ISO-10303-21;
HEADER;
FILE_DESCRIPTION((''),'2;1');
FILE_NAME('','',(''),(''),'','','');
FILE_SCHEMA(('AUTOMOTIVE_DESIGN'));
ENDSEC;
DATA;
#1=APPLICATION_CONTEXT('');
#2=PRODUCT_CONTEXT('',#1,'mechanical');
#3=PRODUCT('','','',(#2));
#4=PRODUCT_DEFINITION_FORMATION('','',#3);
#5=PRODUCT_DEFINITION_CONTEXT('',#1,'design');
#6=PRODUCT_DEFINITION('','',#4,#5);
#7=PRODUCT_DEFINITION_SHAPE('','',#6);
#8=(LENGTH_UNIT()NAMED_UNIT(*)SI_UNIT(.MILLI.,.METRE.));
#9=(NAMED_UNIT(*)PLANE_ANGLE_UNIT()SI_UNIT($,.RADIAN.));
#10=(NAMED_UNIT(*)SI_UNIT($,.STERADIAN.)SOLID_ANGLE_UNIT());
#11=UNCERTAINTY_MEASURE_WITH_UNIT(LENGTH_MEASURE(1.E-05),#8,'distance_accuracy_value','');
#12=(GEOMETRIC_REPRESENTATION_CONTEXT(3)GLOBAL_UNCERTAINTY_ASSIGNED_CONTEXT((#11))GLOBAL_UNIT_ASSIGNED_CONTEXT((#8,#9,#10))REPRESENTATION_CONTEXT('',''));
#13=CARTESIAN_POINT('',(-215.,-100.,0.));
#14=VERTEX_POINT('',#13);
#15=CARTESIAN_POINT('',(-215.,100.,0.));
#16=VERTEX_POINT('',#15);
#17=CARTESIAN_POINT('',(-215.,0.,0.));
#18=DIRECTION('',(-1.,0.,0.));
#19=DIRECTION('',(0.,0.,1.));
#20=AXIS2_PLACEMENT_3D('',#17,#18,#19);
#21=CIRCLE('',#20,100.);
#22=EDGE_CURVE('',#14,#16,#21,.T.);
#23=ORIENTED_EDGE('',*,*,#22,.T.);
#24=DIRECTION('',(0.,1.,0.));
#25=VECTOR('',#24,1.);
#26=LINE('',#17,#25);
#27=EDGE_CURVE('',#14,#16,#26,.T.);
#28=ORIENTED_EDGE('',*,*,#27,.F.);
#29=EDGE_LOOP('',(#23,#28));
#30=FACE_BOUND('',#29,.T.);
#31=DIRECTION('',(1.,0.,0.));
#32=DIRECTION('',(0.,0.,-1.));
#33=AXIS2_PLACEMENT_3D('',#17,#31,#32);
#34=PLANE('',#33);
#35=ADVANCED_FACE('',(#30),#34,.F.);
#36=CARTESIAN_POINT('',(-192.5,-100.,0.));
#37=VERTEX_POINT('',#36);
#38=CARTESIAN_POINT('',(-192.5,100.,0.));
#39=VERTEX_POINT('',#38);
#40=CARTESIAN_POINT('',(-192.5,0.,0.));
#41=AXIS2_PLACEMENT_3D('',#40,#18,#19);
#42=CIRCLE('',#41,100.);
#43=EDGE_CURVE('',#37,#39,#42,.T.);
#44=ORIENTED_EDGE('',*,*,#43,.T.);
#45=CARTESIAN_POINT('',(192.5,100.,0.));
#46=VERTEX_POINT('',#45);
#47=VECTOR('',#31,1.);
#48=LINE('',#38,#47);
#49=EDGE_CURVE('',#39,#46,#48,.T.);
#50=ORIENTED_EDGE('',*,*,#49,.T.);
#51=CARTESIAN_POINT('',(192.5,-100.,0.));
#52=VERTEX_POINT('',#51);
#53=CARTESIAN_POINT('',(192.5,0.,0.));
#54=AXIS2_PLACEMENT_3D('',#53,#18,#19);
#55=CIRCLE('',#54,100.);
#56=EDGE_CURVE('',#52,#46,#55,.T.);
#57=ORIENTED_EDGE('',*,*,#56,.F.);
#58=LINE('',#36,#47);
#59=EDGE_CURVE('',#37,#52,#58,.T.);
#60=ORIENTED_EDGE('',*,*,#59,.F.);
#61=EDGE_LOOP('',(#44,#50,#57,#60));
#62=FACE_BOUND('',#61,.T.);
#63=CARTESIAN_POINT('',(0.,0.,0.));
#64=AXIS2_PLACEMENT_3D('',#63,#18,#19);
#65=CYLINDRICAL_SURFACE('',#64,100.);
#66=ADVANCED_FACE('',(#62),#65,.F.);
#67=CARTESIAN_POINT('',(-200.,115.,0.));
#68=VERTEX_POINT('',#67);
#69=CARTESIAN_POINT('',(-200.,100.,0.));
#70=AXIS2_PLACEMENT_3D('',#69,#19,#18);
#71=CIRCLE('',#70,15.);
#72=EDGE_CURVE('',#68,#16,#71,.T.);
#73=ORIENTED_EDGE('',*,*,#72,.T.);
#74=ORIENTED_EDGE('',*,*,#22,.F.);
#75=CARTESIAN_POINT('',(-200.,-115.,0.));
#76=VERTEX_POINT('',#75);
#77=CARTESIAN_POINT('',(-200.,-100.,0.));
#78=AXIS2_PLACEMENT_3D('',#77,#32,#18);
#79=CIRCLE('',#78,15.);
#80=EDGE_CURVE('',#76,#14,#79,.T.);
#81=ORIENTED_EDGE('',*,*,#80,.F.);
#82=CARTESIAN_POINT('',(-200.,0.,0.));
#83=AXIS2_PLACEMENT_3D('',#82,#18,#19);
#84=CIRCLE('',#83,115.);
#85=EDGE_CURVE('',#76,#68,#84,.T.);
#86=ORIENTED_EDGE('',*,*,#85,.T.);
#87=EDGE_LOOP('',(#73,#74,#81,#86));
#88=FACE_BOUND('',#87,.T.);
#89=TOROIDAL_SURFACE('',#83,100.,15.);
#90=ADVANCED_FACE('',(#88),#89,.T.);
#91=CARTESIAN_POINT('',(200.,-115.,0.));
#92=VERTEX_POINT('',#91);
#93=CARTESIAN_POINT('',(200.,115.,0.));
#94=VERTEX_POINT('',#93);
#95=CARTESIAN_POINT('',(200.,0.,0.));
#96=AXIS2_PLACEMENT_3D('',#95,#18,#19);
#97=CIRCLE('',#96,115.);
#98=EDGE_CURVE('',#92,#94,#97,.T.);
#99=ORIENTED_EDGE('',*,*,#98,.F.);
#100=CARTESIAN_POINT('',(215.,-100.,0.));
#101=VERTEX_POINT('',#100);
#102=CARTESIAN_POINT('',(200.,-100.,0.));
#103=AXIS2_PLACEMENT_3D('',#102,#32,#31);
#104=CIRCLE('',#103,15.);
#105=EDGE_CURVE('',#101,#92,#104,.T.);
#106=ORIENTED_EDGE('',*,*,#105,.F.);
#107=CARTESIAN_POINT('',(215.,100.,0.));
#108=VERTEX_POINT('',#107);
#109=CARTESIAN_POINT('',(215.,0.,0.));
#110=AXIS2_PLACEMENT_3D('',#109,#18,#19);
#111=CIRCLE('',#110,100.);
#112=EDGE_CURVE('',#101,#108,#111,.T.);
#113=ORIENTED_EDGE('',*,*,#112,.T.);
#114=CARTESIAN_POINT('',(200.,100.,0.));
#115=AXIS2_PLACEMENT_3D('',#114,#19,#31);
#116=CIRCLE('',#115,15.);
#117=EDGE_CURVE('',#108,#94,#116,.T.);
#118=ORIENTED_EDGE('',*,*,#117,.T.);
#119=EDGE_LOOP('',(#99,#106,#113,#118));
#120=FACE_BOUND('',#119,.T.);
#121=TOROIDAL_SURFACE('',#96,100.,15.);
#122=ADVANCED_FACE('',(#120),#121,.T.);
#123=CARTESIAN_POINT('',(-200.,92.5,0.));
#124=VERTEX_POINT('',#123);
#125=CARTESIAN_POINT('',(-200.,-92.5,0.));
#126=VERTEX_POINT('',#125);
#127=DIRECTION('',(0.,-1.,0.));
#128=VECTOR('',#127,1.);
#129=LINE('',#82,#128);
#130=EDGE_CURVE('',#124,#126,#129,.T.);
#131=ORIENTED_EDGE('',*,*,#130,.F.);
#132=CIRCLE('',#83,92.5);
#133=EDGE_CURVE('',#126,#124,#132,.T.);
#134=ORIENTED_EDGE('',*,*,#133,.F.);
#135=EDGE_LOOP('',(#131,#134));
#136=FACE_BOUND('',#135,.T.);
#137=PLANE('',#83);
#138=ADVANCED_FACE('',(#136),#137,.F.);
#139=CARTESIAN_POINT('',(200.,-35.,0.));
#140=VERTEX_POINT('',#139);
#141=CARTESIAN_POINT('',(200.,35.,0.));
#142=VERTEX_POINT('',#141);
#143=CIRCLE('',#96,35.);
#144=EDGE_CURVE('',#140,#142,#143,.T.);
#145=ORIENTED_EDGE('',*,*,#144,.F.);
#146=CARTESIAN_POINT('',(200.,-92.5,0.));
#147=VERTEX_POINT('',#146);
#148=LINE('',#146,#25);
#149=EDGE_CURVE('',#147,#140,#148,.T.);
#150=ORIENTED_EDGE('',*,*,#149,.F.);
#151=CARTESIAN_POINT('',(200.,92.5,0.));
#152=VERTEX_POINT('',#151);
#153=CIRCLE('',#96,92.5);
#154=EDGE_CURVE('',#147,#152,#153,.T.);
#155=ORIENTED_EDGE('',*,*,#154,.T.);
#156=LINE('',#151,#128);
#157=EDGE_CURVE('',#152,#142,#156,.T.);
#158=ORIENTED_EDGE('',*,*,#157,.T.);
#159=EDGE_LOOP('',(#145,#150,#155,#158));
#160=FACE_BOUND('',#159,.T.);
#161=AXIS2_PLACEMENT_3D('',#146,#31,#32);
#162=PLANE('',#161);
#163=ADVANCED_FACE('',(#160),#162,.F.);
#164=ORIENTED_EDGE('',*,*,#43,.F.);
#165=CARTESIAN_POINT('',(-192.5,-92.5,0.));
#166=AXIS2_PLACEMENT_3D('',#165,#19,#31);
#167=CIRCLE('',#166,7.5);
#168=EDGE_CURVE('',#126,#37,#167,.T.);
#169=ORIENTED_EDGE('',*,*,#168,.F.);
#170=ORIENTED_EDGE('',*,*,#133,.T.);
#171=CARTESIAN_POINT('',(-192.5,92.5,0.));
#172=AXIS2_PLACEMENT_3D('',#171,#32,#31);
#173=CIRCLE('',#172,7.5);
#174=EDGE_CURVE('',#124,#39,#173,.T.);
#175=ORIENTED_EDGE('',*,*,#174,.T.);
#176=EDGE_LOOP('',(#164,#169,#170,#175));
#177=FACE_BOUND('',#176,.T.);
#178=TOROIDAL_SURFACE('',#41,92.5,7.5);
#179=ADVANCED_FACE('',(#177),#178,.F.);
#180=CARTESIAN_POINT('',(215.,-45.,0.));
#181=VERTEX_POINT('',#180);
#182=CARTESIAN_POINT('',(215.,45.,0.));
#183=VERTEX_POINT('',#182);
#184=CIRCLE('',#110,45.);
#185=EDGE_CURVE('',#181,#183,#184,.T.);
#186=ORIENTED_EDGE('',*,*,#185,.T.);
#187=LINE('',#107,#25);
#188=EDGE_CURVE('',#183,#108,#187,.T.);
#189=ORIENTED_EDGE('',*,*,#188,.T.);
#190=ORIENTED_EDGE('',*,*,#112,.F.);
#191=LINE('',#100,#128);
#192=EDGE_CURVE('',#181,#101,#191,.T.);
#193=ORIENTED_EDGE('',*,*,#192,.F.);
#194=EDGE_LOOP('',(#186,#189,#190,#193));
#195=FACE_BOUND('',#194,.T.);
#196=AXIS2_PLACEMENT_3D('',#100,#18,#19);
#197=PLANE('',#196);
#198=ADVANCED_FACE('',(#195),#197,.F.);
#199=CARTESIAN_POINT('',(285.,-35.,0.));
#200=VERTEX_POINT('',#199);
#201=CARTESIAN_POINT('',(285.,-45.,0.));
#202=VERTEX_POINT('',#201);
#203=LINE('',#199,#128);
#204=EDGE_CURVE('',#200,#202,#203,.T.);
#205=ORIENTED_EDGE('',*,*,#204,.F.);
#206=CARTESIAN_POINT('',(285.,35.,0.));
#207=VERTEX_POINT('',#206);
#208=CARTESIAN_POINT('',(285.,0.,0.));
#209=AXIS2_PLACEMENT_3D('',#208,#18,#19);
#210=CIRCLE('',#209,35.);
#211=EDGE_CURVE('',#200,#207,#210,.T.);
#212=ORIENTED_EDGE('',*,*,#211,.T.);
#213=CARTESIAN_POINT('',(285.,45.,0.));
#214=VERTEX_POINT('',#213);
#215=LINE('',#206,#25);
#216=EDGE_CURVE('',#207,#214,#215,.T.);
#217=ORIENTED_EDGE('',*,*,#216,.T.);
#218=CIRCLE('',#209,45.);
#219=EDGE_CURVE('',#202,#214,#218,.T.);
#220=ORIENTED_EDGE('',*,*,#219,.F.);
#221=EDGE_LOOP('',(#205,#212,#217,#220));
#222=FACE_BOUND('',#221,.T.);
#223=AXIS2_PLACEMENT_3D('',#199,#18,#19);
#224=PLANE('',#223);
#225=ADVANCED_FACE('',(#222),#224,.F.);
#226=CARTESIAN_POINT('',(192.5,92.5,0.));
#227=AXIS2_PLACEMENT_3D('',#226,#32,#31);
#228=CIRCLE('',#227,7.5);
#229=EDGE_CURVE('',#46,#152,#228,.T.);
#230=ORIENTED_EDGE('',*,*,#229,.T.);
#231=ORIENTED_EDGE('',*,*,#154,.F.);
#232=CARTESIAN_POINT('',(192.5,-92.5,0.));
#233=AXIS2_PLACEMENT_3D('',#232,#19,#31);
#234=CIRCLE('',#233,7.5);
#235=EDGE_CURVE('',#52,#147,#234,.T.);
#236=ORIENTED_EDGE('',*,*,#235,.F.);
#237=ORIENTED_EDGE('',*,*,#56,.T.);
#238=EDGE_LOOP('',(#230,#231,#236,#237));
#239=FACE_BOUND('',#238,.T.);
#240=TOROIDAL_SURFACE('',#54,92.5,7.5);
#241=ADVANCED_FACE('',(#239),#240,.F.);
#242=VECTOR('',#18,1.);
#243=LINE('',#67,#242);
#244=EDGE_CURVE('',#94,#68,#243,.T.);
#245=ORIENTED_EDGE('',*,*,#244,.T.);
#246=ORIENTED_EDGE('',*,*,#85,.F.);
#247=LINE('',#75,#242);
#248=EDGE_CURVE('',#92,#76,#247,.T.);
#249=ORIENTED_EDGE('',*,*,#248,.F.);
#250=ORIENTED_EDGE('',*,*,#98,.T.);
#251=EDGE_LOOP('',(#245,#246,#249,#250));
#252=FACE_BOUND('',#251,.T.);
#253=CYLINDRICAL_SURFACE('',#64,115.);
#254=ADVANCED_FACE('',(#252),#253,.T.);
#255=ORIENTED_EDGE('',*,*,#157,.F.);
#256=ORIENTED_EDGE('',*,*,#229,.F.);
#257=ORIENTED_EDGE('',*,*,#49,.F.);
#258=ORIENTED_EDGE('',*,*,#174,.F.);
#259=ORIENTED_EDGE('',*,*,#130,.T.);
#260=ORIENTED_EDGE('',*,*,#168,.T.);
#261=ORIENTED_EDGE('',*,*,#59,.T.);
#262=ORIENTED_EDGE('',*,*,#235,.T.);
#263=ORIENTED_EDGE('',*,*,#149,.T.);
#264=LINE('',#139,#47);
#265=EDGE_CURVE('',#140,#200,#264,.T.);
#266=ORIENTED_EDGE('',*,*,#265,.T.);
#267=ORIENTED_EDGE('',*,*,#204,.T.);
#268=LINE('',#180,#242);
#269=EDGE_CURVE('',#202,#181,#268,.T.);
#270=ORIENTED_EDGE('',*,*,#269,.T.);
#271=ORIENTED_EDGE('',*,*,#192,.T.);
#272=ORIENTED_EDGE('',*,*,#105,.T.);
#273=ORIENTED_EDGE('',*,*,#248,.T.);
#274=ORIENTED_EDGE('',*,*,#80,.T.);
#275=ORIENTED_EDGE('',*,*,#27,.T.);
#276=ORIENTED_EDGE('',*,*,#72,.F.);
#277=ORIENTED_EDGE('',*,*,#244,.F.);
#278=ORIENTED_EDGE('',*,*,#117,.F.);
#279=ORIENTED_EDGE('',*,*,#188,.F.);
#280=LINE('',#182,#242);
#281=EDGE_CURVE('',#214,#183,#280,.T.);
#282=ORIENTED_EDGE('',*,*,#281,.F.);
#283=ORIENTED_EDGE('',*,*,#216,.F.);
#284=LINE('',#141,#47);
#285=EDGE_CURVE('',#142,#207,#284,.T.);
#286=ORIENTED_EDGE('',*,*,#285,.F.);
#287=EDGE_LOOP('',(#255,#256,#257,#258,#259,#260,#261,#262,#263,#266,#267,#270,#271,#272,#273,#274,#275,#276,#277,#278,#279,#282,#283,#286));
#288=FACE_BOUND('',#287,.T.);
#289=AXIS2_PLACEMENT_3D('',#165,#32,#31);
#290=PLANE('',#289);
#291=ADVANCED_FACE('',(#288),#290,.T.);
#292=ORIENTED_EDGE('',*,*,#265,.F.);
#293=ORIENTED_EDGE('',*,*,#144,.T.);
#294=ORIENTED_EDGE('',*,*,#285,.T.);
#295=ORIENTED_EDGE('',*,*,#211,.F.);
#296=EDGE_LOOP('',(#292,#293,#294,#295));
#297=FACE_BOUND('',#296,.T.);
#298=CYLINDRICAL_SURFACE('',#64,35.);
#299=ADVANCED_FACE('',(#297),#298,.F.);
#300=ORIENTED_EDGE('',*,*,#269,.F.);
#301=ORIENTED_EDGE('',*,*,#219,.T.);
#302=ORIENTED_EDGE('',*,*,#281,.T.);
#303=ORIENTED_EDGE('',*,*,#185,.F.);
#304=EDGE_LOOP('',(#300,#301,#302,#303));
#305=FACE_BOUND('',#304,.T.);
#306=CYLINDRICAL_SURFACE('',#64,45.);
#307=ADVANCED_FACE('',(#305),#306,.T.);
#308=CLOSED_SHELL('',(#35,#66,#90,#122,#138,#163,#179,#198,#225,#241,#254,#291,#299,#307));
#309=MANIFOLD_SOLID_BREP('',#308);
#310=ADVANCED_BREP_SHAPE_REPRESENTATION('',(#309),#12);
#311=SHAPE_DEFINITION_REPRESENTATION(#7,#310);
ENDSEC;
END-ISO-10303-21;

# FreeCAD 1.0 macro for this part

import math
import FreeCAD as App
import Part
import Sketcher
from FreeCAD import Vector
Q = App.Units.Quantity

doc = App.newDocument("Part")
body = doc.addObject("PartDesign::Body", "Body")

# Sketch on XY plane
sketch1 = body.newObject("Sketcher::SketchObject", "Sketch")
sketch1.AttachmentSupport = (doc.getObject("XY_Plane"), [""])
sketch1.MapMode = "FlatFace"
sketch1.addGeometry([
    Part.LineSegment(Vector(-215, 100, 0), Vector(-215, 0, 0)),  # 0
    Part.LineSegment(Vector(-215, 0, 0), Vector(-200, 0, 0)),  # 1
    Part.LineSegment(Vector(-200, 0, 0), Vector(-200, 92, 0)),  # 2
    Part.ArcOfCircle(Part.Circle(Vector(-192, 92, 0), Vector(0, 0, 1), 8), math.radians(90), math.radians(180)),  # 3
    Part.LineSegment(Vector(-192, 100, 0), Vector(192, 100, 0)),  # 4
    Part.ArcOfCircle(Part.Circle(Vector(192, 92, 0), Vector(0, 0, 1), 8), math.radians(0), math.radians(90)),  # 5
    Part.LineSegment(Vector(200, 92, 0), Vector(200, 35, 0)),  # 6
    Part.LineSegment(Vector(200, 35, 0), Vector(285, 35, 0)),  # 7
    Part.LineSegment(Vector(285, 35, 0), Vector(285, 45, 0)),  # 8
    Part.LineSegment(Vector(285, 45, 0), Vector(215, 45, 0)),  # 9
    Part.LineSegment(Vector(215, 45, 0), Vector(215, 100, 0)),  # 10
    Part.ArcOfCircle(Part.Circle(Vector(200, 100, 0), Vector(0, 0, 1), 15), math.radians(0), math.radians(90)),  # 11
    Part.LineSegment(Vector(200, 115, 0), Vector(-200, 115, 0)),  # 12
    Part.ArcOfCircle(Part.Circle(Vector(-200, 100, 0), Vector(0, 0, 1), 15), math.radians(90), math.radians(180)),  # 13
], False)
sketch1.addConstraint([
    Sketcher.Constraint("Coincident", 0, 2, 1, 1),
    Sketcher.Constraint("Coincident", 1, 2, 2, 1),
    Sketcher.Constraint("Tangent", 2, 2, 3, 2),
    Sketcher.Constraint("Tangent", 3, 1, 4, 1),
    Sketcher.Constraint("Tangent", 4, 2, 5, 2),
    Sketcher.Constraint("Tangent", 5, 1, 6, 1),
    Sketcher.Constraint("Coincident", 6, 2, 7, 1),
    Sketcher.Constraint("Coincident", 7, 2, 8, 1),
    Sketcher.Constraint("Coincident", 8, 2, 9, 1),
    Sketcher.Constraint("Coincident", 9, 2, 10, 1),
    Sketcher.Constraint("Tangent", 10, 2, 11, 1),
    Sketcher.Constraint("Tangent", 11, 2, 12, 1),
    Sketcher.Constraint("Tangent", 12, 2, 13, 1),
    Sketcher.Constraint("Tangent", 13, 2, 0, 1),
    Sketcher.Constraint("Vertical", 0),
    Sketcher.Constraint("Horizontal", 1),
    Sketcher.Constraint("Vertical", 2),
    Sketcher.Constraint("Horizontal", 4),
    Sketcher.Constraint("Vertical", 6),
    Sketcher.Constraint("Horizontal", 7),
    Sketcher.Constraint("Vertical", 8),
    Sketcher.Constraint("Horizontal", 9),
    Sketcher.Constraint("Vertical", 10),
    Sketcher.Constraint("Horizontal", 12),
    Sketcher.Constraint("Equal", 3, 5),
    Sketcher.Constraint("Equal", 11, 13),
    Sketcher.Constraint("PointOnObject", 0, 2, -1),
    Sketcher.Constraint("Horizontal", 13, 3, 3, 1),
    Sketcher.Constraint("Vertical", 13, 3, 1, 2),
    Sketcher.Constraint("Vertical", 11, 3, 5, 1),
    Sketcher.Constraint("Radius", 11, Q("15 mm")),
    Sketcher.Constraint("Radius", 3, Q("7.5 mm")),
    Sketcher.Constraint("DistanceX", 4, 1, 4, 2, Q("385 mm")),
    Sketcher.Constraint("DistanceX", 7, 1, 7, 2, Q("85 mm")),
    Sketcher.Constraint("DistanceY", 0, 2, 0, 1, Q("100 mm")),
    Sketcher.Constraint("DistanceY", 8, 1, 8, 2, Q("10 mm")),
    Sketcher.Constraint("DistanceY", 10, 1, 10, 2, Q("55 mm")),
    Sketcher.Constraint("DistanceX", -1, 1, 11, 3, Q("200 mm")),
])
revolution = body.newObject("PartDesign::Revolution", "Revolution")
revolution.Profile = sketch1
revolution.ReferenceAxis = (sketch1, ["H_Axis"])
revolution.Angle = 180

doc.recompute()
